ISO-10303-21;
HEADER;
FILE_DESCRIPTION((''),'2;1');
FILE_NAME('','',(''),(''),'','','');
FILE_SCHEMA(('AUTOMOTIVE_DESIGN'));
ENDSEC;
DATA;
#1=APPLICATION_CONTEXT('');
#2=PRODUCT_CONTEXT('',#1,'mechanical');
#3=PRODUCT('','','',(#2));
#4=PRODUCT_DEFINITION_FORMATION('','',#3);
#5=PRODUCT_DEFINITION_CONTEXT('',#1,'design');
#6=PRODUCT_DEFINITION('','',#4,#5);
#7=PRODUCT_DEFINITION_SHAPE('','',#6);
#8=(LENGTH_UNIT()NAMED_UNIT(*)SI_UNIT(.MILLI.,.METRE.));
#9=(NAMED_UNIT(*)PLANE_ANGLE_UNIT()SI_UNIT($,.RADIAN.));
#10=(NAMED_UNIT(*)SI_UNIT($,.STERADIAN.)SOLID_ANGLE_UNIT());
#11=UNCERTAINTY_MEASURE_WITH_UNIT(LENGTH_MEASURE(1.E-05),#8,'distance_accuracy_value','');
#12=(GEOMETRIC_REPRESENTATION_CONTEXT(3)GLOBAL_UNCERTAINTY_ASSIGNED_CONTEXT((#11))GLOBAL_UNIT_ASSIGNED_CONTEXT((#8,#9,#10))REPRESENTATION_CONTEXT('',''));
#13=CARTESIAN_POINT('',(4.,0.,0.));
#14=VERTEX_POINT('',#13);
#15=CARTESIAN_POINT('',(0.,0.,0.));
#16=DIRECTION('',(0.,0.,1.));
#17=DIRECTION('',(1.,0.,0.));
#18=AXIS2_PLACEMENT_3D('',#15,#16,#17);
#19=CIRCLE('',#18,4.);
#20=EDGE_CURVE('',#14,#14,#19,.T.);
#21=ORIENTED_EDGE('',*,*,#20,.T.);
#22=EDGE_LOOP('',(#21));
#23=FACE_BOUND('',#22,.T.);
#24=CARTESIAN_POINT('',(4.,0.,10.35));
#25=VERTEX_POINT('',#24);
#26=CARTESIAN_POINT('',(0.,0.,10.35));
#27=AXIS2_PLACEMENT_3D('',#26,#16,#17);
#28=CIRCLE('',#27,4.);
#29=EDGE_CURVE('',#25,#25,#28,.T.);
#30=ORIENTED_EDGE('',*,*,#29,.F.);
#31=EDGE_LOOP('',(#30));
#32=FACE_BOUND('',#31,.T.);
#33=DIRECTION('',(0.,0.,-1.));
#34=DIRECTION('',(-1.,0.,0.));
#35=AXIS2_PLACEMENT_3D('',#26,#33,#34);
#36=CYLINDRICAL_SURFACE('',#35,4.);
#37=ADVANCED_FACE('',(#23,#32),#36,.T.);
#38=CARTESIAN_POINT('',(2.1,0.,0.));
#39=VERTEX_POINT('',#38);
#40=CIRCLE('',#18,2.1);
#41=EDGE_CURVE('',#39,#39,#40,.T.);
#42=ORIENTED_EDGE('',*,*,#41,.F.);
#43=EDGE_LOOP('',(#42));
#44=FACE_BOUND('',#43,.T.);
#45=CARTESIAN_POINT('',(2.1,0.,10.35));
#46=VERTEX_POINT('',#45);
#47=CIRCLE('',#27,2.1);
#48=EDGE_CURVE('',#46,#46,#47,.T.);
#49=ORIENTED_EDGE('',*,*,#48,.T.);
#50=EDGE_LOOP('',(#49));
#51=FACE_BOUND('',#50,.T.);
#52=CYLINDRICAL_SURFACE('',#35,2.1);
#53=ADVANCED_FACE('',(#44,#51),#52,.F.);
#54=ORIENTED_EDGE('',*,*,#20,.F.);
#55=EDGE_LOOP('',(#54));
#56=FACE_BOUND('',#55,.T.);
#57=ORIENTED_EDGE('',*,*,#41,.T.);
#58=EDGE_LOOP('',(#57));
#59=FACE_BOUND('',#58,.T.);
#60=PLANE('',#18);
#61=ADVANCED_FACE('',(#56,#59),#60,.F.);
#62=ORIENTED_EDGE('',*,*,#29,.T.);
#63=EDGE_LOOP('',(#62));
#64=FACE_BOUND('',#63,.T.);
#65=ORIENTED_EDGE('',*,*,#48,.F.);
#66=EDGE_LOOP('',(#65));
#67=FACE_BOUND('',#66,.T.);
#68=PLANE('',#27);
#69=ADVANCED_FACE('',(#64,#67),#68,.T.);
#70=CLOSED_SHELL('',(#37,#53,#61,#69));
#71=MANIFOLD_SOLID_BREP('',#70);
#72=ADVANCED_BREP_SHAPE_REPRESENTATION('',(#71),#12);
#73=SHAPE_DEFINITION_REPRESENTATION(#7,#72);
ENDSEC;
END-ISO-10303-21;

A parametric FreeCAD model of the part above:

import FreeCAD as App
import Part
import Sketcher
Q = App.Units.Quantity

doc = App.newDocument("Part")
body = doc.addObject("PartDesign::Body", "Body")

# Sketch on XY plane
sketch1 = doc.addObject("Sketcher::SketchObject", "Sketch")
body.addObject(sketch1)
sketch1.AttachmentSupport = (doc.XY_Plane, [""])
sketch1.MapMode = "FlatFace"
sketch1.addGeometry(Part.Circle(App.Vector(0, 0, 0), App.Vector(0, 0, 1), 4), False)
sketch1.addGeometry(Part.Circle(App.Vector(0, 0, 0), App.Vector(0, 0, 1), 2.1), False)
sketch1.addConstraint(Sketcher.Constraint("Coincident", 0, 3, -1, 1))
sketch1.addConstraint(Sketcher.Constraint("Coincident", 1, 3, -1, 1))
sketch1.addConstraint(Sketcher.Constraint("Diameter", 0, Q("8 mm")))
sketch1.addConstraint(Sketcher.Constraint("Diameter", 1, Q("4.2 mm")))
pad1 = doc.addObject("PartDesign::Pad", "Pad")
body.addObject(pad1)
pad1.Profile = sketch1
pad1.Length = 10.35

doc.recompute()
